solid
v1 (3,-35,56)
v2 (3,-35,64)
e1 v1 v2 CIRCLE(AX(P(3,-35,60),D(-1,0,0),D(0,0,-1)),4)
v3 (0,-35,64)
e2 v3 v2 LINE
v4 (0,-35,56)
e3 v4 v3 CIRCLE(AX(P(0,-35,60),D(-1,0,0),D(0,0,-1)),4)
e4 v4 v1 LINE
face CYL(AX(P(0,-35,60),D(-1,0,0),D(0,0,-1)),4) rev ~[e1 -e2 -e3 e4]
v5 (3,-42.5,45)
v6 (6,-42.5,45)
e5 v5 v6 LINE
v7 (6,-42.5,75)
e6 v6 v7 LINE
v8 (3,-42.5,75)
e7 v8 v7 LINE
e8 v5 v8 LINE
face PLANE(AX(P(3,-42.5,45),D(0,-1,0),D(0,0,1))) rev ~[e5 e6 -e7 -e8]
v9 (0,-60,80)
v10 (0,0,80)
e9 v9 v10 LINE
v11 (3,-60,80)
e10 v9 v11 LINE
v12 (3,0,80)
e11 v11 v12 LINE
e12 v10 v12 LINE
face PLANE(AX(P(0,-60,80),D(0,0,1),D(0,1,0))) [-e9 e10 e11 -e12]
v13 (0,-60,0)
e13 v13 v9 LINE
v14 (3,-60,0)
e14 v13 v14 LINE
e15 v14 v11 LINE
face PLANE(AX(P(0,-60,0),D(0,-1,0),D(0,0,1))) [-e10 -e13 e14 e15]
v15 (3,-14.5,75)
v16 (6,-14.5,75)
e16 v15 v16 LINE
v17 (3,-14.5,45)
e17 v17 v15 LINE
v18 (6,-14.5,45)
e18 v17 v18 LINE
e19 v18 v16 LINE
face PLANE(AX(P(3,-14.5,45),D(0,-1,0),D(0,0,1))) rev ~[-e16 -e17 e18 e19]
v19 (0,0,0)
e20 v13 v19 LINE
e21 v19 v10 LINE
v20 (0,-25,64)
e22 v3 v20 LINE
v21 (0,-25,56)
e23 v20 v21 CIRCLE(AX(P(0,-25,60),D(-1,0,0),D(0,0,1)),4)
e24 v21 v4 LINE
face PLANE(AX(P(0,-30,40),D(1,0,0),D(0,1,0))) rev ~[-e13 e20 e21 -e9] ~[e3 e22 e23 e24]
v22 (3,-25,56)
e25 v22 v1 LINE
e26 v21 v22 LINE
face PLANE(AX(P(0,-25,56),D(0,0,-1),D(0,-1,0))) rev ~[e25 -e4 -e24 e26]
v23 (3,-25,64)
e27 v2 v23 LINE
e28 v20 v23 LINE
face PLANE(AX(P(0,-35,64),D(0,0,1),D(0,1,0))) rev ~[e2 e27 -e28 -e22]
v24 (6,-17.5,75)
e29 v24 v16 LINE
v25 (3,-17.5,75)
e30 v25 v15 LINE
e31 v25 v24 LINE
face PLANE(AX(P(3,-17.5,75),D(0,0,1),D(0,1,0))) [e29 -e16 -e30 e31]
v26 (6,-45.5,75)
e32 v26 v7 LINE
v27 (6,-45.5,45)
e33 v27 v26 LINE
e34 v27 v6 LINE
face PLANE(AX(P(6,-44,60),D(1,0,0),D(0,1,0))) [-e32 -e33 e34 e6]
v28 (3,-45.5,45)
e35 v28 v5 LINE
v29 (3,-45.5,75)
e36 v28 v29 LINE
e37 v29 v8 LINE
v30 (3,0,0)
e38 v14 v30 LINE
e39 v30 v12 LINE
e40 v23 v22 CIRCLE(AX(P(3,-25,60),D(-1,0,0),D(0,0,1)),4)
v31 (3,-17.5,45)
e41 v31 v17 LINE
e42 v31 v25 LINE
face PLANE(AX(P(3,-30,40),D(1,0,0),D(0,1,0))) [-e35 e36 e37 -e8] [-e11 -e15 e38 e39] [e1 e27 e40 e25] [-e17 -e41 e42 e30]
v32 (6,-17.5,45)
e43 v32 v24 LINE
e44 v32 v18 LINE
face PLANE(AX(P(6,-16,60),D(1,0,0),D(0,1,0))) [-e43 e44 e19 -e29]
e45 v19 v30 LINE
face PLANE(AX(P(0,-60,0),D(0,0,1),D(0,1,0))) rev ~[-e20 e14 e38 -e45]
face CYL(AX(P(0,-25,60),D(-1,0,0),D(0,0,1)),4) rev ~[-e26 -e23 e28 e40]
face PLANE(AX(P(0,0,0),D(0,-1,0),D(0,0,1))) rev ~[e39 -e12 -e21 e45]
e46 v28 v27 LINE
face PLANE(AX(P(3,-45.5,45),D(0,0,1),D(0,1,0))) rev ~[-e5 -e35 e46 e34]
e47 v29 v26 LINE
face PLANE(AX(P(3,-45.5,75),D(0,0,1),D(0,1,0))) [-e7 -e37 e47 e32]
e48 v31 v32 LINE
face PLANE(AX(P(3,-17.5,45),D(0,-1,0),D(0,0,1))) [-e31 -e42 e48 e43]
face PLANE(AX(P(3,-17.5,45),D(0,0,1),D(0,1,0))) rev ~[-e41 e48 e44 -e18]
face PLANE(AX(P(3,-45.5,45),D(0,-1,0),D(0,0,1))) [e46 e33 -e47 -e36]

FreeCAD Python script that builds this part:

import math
import FreeCAD as App
import Part
import Sketcher

V = App.Vector


def add_polygon(sketch, points):
    """Adds a closed chain of lines whose ends are joined by coincident constraints."""
    first, n = sketch.GeometryCount, len(points)
    for a, b in zip(points, points[1:] + points[:1]):
        sketch.addGeometry(Part.LineSegment(App.Vector(*a, 0), App.Vector(*b, 0)), False)
    for i in range(n):
        sketch.addConstraint(Sketcher.Constraint("Coincident", first + i, 2, first + (i + 1) % n, 1))

doc = App.newDocument("Part")
params = doc.addObject("Spreadsheet::Sheet", "Params")
for row, (alias, value) in enumerate([
    ("sketch1_radius", "4 mm"),
    ("sketch1_width", "60 mm"),
    ("sketch1_width2", "10 mm"),
    ("sketch1_height", "80 mm"),
    ("pad1_length", "3 mm"),
    ("sketch2_width", "3 mm"),
    ("sketch2_height", "30 mm"),
    ("pad2_length", "3 mm"),
], start=1):
    params.set(f"A{row}", alias)
    params.set(f"B{row}", "=" + value)
    params.setAlias(f"B{row}", alias)

body = doc.addObject("PartDesign::Body", "Body")

# Sketch on YZ plane
sketch1 = doc.addObject("Sketcher::SketchObject", "Sketch")
body.addObject(sketch1)
sketch1.AttachmentSupport = (doc.YZ_Plane, [""])
sketch1.MapMode = "FlatFace"
add_polygon(sketch1, [(-60, 80), (-60, 0), (0, 0), (0, 80)])  # lines 0-3
sketch1.addGeometry(Part.LineSegment(V(-25, 56, 0), V(-35, 56, 0)), False)  # 4
sketch1.addGeometry(Part.ArcOfCircle(Part.Circle(V(-35, 60, 0), V(0, 0, 1), 4), math.radians(90), math.radians(270)), False)  # 5
sketch1.addGeometry(Part.LineSegment(V(-35, 64, 0), V(-25, 64, 0)), False)  # 6
sketch1.addGeometry(Part.ArcOfCircle(Part.Circle(V(-25, 60, 0), V(0, 0, 1), 4), math.radians(-90), math.radians(90)), False)  # 7
sketch1.addConstraint(Sketcher.Constraint("Tangent", 4, 2, 5, 2))
sketch1.addConstraint(Sketcher.Constraint("Tangent", 5, 1, 6, 1))
sketch1.addConstraint(Sketcher.Constraint("Tangent", 6, 2, 7, 2))
sketch1.addConstraint(Sketcher.Constraint("Tangent", 7, 1, 4, 1))
sketch1.addConstraint(Sketcher.Constraint("Vertical", 0))
sketch1.addConstraint(Sketcher.Constraint("Horizontal", 1))
sketch1.addConstraint(Sketcher.Constraint("Vertical", 2))
sketch1.addConstraint(Sketcher.Constraint("Horizontal", 3))
sketch1.addConstraint(Sketcher.Constraint("Horizontal", 4))
sketch1.addConstraint(Sketcher.Constraint("Horizontal", 6))
sketch1.addConstraint(Sketcher.Constraint("Coincident", 1, 2, -1, 1))
sketch1.addConstraint(Sketcher.Constraint("Radius", 5, 4.0))
sketch1.addConstraint(Sketcher.Constraint("DistanceX", 1, 1, 1, 2, 60.0))
sketch1.addConstraint(Sketcher.Constraint("DistanceX", 4, 2, 4, 1, 10.0))
sketch1.addConstraint(Sketcher.Constraint("DistanceY", 0, 2, 0, 1, 80.0))
sketch1.addConstraint(Sketcher.Constraint("DistanceX", 5, 3, -1, 1, 35.0))
sketch1.addConstraint(Sketcher.Constraint("DistanceY", -1, 1, 5, 3, 60.0))
sketch1.setExpression("Constraints[15]", "Params.sketch1_radius")
sketch1.setExpression("Constraints[16]", "Params.sketch1_width")
sketch1.setExpression("Constraints[17]", "Params.sketch1_width2")
sketch1.setExpression("Constraints[18]", "Params.sketch1_height")
pad1 = doc.addObject("PartDesign::Pad", "Pad")
body.addObject(pad1)
pad1.Profile = sketch1
pad1.setExpression("Length", "Params.pad1_length")

# Sketch on YZ plane
sketch2 = doc.addObject("Sketcher::SketchObject", "Sketch001")
body.addObject(sketch2)
sketch2.AttachmentSupport = (doc.YZ_Plane, [""])
sketch2.MapMode = "FlatFace"
sketch2.AttachmentOffset = App.Placement(V(0, 0, 3), App.Rotation())
add_polygon(sketch2, [(-45.5, 75), (-45.5, 45), (-42.5, 45), (-42.5, 75)])  # lines 0-3
add_polygon(sketch2, [(-17.5, 75), (-17.5, 45), (-14.5, 45), (-14.5, 75)])  # lines 4-7
sketch2.addConstraint(Sketcher.Constraint("Vertical", 0))
sketch2.addConstraint(Sketcher.Constraint("Horizontal", 1))
sketch2.addConstraint(Sketcher.Constraint("Vertical", 2))
sketch2.addConstraint(Sketcher.Constraint("Horizontal", 3))
sketch2.addConstraint(Sketcher.Constraint("Vertical", 4))
sketch2.addConstraint(Sketcher.Constraint("Horizontal", 5))
sketch2.addConstraint(Sketcher.Constraint("Vertical", 6))
sketch2.addConstraint(Sketcher.Constraint("Horizontal", 7))
sketch2.addConstraint(Sketcher.Constraint("Horizontal", 1, 2, 4, 2))
sketch2.addConstraint(Sketcher.Constraint("Horizontal", 3, 2, 6, 2))
sketch2.addConstraint(Sketcher.Constraint("Equal", 3, 5))
sketch2.addConstraint(Sketcher.Constraint("DistanceX", 1, 1, 1, 2, 3.0))
sketch2.addConstraint(Sketcher.Constraint("DistanceY", 0, 2, 0, 1, 30.0))
sketch2.addConstraint(Sketcher.Constraint("DistanceY", -1, 1, 0, 2, 45.0))
sketch2.addConstraint(Sketcher.Constraint("DistanceX", 1, 2, 4, 2, 25.0))
sketch2.addConstraint(Sketcher.Constraint("DistanceX", 0, 2, -1, 1, 45.5))
sketch2.setExpression("Constraints[19]", "Params.sketch2_width")
sketch2.setExpression("Constraints[20]", "Params.sketch2_height")
pad2 = doc.addObject("PartDesign::Pad", "Pad001")
body.addObject(pad2)
pad2.Profile = sketch2
pad2.setExpression("Length", "Params.pad2_length")

doc.recompute()
